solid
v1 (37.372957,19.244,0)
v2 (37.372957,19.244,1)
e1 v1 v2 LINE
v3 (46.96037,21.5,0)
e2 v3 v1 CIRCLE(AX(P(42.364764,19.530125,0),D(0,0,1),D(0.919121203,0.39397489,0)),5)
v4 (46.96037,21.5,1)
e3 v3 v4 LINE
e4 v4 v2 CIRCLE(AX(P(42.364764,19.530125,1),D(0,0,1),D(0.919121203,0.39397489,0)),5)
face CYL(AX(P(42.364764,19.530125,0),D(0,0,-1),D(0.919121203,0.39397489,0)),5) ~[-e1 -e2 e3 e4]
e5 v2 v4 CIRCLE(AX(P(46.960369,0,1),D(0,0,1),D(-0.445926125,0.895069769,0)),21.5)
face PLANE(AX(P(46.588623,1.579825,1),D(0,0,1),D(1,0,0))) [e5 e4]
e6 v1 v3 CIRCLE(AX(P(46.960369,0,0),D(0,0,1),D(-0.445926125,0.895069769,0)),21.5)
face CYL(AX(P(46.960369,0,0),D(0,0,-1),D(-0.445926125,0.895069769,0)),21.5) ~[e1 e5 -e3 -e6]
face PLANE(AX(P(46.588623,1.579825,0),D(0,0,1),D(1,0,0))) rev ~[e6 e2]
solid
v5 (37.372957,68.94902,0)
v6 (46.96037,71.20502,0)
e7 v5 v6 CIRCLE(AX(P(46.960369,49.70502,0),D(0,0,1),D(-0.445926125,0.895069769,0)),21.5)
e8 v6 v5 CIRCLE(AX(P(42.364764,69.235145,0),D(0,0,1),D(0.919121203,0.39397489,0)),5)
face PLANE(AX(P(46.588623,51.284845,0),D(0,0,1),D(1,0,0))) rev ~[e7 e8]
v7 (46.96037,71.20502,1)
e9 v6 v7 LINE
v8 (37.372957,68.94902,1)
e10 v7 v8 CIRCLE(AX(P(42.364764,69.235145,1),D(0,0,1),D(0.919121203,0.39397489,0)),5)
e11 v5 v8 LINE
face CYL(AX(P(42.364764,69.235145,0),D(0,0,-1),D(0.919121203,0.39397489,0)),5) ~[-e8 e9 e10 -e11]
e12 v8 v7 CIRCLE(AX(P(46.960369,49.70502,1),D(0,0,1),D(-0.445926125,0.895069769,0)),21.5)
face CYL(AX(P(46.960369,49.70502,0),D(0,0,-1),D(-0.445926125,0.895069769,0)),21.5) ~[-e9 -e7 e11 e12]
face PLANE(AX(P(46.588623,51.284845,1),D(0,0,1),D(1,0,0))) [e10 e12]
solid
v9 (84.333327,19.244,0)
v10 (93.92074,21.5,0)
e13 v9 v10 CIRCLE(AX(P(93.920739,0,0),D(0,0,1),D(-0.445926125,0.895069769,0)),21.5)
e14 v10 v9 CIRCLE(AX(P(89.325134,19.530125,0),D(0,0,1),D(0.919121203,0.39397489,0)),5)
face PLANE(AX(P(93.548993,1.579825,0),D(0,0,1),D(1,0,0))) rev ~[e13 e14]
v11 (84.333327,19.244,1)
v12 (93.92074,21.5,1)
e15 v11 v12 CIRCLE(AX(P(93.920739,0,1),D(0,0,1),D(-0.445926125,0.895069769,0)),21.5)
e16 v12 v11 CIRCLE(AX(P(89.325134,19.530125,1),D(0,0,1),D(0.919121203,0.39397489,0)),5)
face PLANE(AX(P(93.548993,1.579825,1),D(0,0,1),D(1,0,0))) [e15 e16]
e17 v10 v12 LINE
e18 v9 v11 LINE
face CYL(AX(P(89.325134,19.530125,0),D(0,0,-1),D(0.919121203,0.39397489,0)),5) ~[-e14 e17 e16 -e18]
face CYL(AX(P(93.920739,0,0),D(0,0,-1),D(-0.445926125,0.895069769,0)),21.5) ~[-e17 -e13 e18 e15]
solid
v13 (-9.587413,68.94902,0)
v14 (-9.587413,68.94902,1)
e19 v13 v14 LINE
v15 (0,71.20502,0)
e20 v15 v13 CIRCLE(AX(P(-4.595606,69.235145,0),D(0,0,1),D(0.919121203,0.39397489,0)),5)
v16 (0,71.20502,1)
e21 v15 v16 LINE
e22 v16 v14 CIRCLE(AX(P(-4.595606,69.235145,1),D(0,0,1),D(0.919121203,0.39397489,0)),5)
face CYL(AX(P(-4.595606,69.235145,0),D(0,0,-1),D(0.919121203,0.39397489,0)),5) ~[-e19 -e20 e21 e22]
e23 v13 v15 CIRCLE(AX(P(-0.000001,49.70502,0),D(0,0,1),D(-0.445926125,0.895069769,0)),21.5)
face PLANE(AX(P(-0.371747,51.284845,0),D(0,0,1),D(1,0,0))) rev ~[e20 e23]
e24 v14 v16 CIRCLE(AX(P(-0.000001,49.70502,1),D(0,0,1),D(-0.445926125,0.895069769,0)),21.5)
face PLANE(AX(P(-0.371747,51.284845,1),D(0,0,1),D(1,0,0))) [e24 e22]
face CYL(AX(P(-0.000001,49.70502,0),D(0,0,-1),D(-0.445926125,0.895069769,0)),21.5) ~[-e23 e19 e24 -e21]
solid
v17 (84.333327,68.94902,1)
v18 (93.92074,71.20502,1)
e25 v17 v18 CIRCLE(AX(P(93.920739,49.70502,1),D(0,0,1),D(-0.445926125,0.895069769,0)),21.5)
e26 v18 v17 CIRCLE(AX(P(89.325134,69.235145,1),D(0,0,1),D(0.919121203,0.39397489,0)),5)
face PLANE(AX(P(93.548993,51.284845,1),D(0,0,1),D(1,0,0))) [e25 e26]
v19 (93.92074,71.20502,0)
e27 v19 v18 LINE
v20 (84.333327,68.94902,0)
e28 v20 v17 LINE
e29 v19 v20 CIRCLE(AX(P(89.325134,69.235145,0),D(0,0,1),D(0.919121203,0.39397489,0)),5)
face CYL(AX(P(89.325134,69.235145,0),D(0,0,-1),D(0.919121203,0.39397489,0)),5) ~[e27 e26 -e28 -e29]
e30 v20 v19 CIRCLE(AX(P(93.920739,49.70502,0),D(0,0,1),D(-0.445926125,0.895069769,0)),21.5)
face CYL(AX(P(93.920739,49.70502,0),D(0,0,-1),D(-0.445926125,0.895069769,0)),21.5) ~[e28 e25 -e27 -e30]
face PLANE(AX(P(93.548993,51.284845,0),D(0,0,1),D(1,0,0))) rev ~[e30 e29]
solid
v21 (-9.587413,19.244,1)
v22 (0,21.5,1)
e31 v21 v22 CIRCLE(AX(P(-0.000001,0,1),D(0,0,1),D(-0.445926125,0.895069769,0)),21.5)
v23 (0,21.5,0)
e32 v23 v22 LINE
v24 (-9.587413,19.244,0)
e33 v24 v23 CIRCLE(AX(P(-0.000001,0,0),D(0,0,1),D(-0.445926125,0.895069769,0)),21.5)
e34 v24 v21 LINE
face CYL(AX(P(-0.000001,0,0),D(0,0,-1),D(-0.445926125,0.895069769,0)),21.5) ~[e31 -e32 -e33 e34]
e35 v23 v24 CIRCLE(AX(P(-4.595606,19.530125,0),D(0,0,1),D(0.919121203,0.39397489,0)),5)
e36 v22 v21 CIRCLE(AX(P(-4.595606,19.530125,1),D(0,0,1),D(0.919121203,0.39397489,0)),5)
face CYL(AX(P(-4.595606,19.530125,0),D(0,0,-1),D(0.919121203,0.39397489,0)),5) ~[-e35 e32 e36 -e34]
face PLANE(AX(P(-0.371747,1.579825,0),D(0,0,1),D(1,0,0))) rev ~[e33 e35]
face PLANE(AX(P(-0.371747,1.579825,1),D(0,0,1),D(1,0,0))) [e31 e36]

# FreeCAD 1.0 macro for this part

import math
import FreeCAD as App
import Part
import Sketcher
Q = App.Units.Quantity

doc = App.newDocument("Part")
body = doc.addObject("PartDesign::Body", "Body")
body.AllowCompound = True

sketch1 = body.newObject("Sketcher::SketchObject", "Sketch")
sketch1.AttachmentSupport = (doc.getObject("XY_Plane"), [""])
sketch1.MapMode = "FlatFace"
sketch1.addGeometry(Part.ArcOfCircle(Part.Circle(App.Vector(-5, 20, 0), App.Vector(0, 0, 1), 5), math.radians(23), math.radians(183)), False)
sketch1.addGeometry(Part.ArcOfCircle(Part.Circle(App.Vector(0, 0, 0), App.Vector(0, 0, 1), 22), math.radians(116), math.radians(450)), False)
sketch1.addGeometry(Part.ArcOfCircle(Part.Circle(App.Vector(-5, 69, 0), App.Vector(0, 0, 1), 5), math.radians(23), math.radians(183)), False)
sketch1.addGeometry(Part.ArcOfCircle(Part.Circle(App.Vector(0, 50, 0), App.Vector(0, 0, 1), 22), math.radians(116), math.radians(450)), False)
sketch1.addGeometry(Part.ArcOfCircle(Part.Circle(App.Vector(42, 69, 0), App.Vector(0, 0, 1), 5), math.radians(23), math.radians(183)), False)
sketch1.addGeometry(Part.ArcOfCircle(Part.Circle(App.Vector(47, 50, 0), App.Vector(0, 0, 1), 22), math.radians(116), math.radians(450)), False)
sketch1.addGeometry(Part.ArcOfCircle(Part.Circle(App.Vector(89, 69, 0), App.Vector(0, 0, 1), 5), math.radians(23), math.radians(183)), False)
sketch1.addGeometry(Part.ArcOfCircle(Part.Circle(App.Vector(94, 50, 0), App.Vector(0, 0, 1), 22), math.radians(116), math.radians(450)), False)
sketch1.addGeometry(Part.ArcOfCircle(Part.Circle(App.Vector(42, 20, 0), App.Vector(0, 0, 1), 5), math.radians(23), math.radians(183)), False)
sketch1.addGeometry(Part.ArcOfCircle(Part.Circle(App.Vector(47, 0, 0), App.Vector(0, 0, 1), 22), math.radians(116), math.radians(450)), False)
sketch1.addGeometry(Part.ArcOfCircle(Part.Circle(App.Vector(89, 20, 0), App.Vector(0, 0, 1), 5), math.radians(23), math.radians(183)), False)
sketch1.addGeometry(Part.ArcOfCircle(Part.Circle(App.Vector(94, 0, 0), App.Vector(0, 0, 1), 22), math.radians(116), math.radians(450)), False)
sketch1.addConstraint(Sketcher.Constraint("Coincident", 0, 1, 1, 2))
sketch1.addConstraint(Sketcher.Constraint("Coincident", 1, 1, 0, 2))
sketch1.addConstraint(Sketcher.Constraint("Coincident", 2, 1, 3, 2))
sketch1.addConstraint(Sketcher.Constraint("Coincident", 3, 1, 2, 2))
sketch1.addConstraint(Sketcher.Constraint("Coincident", 4, 1, 5, 2))
sketch1.addConstraint(Sketcher.Constraint("Coincident", 5, 1, 4, 2))
sketch1.addConstraint(Sketcher.Constraint("Coincident", 6, 1, 7, 2))
sketch1.addConstraint(Sketcher.Constraint("Coincident", 7, 1, 6, 2))
sketch1.addConstraint(Sketcher.Constraint("Coincident", 8, 1, 9, 2))
sketch1.addConstraint(Sketcher.Constraint("Coincident", 9, 1, 8, 2))
sketch1.addConstraint(Sketcher.Constraint("Coincident", 10, 1, 11, 2))
sketch1.addConstraint(Sketcher.Constraint("Coincident", 11, 1, 10, 2))
sketch1.addConstraint(Sketcher.Constraint("Coincident", 1, 3, -1, 1))
sketch1.addConstraint(Sketcher.Constraint("Equal", 0, 2))
sketch1.addConstraint(Sketcher.Constraint("Equal", 1, 3))
sketch1.addConstraint(Sketcher.Constraint("Equal", 2, 4))
sketch1.addConstraint(Sketcher.Constraint("Equal", 3, 5))
sketch1.addConstraint(Sketcher.Constraint("Equal", 4, 6))
sketch1.addConstraint(Sketcher.Constraint("Equal", 5, 7))
sketch1.addConstraint(Sketcher.Constraint("Equal", 6, 8))
sketch1.addConstraint(Sketcher.Constraint("Equal", 7, 9))
sketch1.addConstraint(Sketcher.Constraint("Equal", 8, 10))
sketch1.addConstraint(Sketcher.Constraint("Equal", 9, 11))
sketch1.addConstraint(Sketcher.Constraint("PointOnObject", 3, 3, -2))
sketch1.addConstraint(Sketcher.Constraint("PointOnObject", 9, 3, -1))
sketch1.addConstraint(Sketcher.Constraint("PointOnObject", 11, 3, -1))
sketch1.addConstraint(Sketcher.Constraint("PointOnObject", 0, 1, -2))
sketch1.addConstraint(Sketcher.Constraint("PointOnObject", 2, 1, -2))
sketch1.addConstraint(Sketcher.Constraint("Horizontal", 2, 3, 4, 3))
sketch1.addConstraint(Sketcher.Constraint("Horizontal", 3, 3, 5, 3))
sketch1.addConstraint(Sketcher.Constraint("Horizontal", 4, 3, 6, 3))
sketch1.addConstraint(Sketcher.Constraint("Horizontal", 5, 3, 7, 3))
sketch1.addConstraint(Sketcher.Constraint("Horizontal", 0, 3, 8, 3))
sketch1.addConstraint(Sketcher.Constraint("Horizontal", 8, 3, 10, 3))
sketch1.addConstraint(Sketcher.Constraint("Horizontal", 3, 1, 5, 1))
sketch1.addConstraint(Sketcher.Constraint("Horizontal", 5, 1, 7, 1))
sketch1.addConstraint(Sketcher.Constraint("Horizontal", 1, 1, 9, 1))
sketch1.addConstraint(Sketcher.Constraint("Horizontal", 9, 1, 11, 1))
sketch1.addConstraint(Sketcher.Constraint("Vertical", 0, 3, 2, 3))
sketch1.addConstraint(Sketcher.Constraint("Vertical", 4, 3, 8, 3))
sketch1.addConstraint(Sketcher.Constraint("Vertical", 6, 3, 10, 3))
sketch1.addConstraint(Sketcher.Constraint("Radius", 0, Q("5 mm")))
sketch1.addConstraint(Sketcher.Constraint("Radius", 1, Q("21.5 mm")))
sketch1.addConstraint(Sketcher.Constraint("DistanceY", -1, 1, 1, 1, Q("19.244 mm")))
sketch1.addConstraint(Sketcher.Constraint("DistanceY", -1, 1, 3, 3, Q("49.70502 mm")))
sketch1.addConstraint(Sketcher.Constraint("DistanceX", -1, 1, 5, 3, Q("46.960369 mm")))
sketch1.addConstraint(Sketcher.Constraint("DistanceX", -1, 1, 7, 3, Q("93.920739 mm")))
pad1 = body.newObject("PartDesign::Pad", "Pad")
pad1.Profile = sketch1
pad1.Length = 1

doc.recompute()
